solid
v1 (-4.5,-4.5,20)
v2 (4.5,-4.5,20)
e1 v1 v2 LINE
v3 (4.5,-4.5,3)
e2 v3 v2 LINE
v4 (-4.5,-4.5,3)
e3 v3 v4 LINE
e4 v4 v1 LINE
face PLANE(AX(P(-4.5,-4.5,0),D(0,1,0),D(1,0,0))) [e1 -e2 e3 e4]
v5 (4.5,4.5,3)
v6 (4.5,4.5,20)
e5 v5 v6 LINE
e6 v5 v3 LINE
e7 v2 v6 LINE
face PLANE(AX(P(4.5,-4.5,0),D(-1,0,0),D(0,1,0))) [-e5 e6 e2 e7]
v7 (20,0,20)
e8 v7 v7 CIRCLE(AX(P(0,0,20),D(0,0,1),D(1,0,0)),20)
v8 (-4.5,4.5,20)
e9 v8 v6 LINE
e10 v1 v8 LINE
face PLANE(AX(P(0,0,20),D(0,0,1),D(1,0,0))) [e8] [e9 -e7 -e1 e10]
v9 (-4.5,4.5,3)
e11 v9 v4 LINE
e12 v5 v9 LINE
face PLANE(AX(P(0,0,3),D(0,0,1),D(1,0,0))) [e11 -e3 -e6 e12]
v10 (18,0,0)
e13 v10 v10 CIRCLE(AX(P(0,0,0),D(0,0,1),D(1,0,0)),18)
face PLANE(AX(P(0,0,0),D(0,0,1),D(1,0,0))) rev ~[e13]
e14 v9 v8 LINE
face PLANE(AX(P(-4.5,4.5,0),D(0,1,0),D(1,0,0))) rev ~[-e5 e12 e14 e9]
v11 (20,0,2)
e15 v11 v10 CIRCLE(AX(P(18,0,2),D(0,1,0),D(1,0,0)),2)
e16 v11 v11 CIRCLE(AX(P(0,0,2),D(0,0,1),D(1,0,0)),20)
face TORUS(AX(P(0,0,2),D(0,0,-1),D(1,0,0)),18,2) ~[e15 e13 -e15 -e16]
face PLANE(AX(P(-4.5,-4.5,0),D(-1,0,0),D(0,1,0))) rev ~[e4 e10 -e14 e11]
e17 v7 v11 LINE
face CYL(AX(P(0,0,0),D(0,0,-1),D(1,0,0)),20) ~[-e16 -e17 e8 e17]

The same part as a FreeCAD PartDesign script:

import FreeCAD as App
import Part
import Sketcher


def edges_at(feature, points):
    """Names of the edges that pass closest to the given points."""
    edges = feature.Shape.Edges
    near = lambda p: min(range(len(edges)), key=lambda i: edges[i].distToShape(Part.Vertex(*p))[0])
    return sorted({f"Edge{near(p) + 1}" for p in points})

doc = App.newDocument("Part")
body = doc.addObject("PartDesign::Body", "Body")

# Sketch on XY plane
sketch1 = body.newObject("Sketcher::SketchObject", "Sketch")
sketch1.AttachmentSupport = (doc.getObject("XY_Plane"), [""])
sketch1.MapMode = "FlatFace"
sketch1.addGeometry(Part.Circle(App.Vector(0, 0, 0), App.Vector(0, 0, 1), 20), False)
sketch1.addConstraint([
    Sketcher.Constraint("Coincident", 0, 3, -1, 1),
    Sketcher.Constraint("Diameter", 0, 40.0),
])
pad1 = body.newObject("PartDesign::Pad", "Pad")
pad1.Profile = sketch1
pad1.Length = 3

# Sketch on XY plane
sketch2 = body.newObject("Sketcher::SketchObject", "Sketch001")
sketch2.AttachmentSupport = (doc.getObject("XY_Plane"), [""])
sketch2.MapMode = "FlatFace"
sketch2.addGeometry([
    Part.Circle(App.Vector(0, 0, 0), App.Vector(0, 0, 1), 20),  # 0
    Part.LineSegment(App.Vector(4.5, -4.5, 0), App.Vector(-4.5, -4.5, 0)),  # 1
    Part.LineSegment(App.Vector(-4.5, -4.5, 0), App.Vector(-4.5, 4.5, 0)),  # 2
    Part.LineSegment(App.Vector(-4.5, 4.5, 0), App.Vector(4.5, 4.5, 0)),  # 3
    Part.LineSegment(App.Vector(4.5, 4.5, 0), App.Vector(4.5, -4.5, 0)),  # 4
], False)
sketch2.addConstraint([
    Sketcher.Constraint("Coincident", 1, 2, 2, 1),
    Sketcher.Constraint("Coincident", 2, 2, 3, 1),
    Sketcher.Constraint("Coincident", 3, 2, 4, 1),
    Sketcher.Constraint("Coincident", 4, 2, 1, 1),
    Sketcher.Constraint("Horizontal", 1),
    Sketcher.Constraint("Vertical", 2),
    Sketcher.Constraint("Horizontal", 3),
    Sketcher.Constraint("Vertical", 4),
    Sketcher.Constraint("Coincident", 0, 3, -1, 1),
    Sketcher.Constraint("Symmetric", 1, 2, 3, 2, -1, 1),
    Sketcher.Constraint("Equal", 3, 2),
    Sketcher.Constraint("Diameter", 0, 40.0),
    Sketcher.Constraint("DistanceX", 1, 2, 1, 1, 9.0),
])
pad2 = body.newObject("PartDesign::Pad", "Pad001")
pad2.Profile = sketch2
pad2.Length = 20
doc.recompute()

fillet = body.newObject("PartDesign::Fillet", "Fillet")
fillet.Base = (pad2, edges_at(pad2, [(-20, 0, 0)]))
fillet.Radius = 2

doc.recompute()
